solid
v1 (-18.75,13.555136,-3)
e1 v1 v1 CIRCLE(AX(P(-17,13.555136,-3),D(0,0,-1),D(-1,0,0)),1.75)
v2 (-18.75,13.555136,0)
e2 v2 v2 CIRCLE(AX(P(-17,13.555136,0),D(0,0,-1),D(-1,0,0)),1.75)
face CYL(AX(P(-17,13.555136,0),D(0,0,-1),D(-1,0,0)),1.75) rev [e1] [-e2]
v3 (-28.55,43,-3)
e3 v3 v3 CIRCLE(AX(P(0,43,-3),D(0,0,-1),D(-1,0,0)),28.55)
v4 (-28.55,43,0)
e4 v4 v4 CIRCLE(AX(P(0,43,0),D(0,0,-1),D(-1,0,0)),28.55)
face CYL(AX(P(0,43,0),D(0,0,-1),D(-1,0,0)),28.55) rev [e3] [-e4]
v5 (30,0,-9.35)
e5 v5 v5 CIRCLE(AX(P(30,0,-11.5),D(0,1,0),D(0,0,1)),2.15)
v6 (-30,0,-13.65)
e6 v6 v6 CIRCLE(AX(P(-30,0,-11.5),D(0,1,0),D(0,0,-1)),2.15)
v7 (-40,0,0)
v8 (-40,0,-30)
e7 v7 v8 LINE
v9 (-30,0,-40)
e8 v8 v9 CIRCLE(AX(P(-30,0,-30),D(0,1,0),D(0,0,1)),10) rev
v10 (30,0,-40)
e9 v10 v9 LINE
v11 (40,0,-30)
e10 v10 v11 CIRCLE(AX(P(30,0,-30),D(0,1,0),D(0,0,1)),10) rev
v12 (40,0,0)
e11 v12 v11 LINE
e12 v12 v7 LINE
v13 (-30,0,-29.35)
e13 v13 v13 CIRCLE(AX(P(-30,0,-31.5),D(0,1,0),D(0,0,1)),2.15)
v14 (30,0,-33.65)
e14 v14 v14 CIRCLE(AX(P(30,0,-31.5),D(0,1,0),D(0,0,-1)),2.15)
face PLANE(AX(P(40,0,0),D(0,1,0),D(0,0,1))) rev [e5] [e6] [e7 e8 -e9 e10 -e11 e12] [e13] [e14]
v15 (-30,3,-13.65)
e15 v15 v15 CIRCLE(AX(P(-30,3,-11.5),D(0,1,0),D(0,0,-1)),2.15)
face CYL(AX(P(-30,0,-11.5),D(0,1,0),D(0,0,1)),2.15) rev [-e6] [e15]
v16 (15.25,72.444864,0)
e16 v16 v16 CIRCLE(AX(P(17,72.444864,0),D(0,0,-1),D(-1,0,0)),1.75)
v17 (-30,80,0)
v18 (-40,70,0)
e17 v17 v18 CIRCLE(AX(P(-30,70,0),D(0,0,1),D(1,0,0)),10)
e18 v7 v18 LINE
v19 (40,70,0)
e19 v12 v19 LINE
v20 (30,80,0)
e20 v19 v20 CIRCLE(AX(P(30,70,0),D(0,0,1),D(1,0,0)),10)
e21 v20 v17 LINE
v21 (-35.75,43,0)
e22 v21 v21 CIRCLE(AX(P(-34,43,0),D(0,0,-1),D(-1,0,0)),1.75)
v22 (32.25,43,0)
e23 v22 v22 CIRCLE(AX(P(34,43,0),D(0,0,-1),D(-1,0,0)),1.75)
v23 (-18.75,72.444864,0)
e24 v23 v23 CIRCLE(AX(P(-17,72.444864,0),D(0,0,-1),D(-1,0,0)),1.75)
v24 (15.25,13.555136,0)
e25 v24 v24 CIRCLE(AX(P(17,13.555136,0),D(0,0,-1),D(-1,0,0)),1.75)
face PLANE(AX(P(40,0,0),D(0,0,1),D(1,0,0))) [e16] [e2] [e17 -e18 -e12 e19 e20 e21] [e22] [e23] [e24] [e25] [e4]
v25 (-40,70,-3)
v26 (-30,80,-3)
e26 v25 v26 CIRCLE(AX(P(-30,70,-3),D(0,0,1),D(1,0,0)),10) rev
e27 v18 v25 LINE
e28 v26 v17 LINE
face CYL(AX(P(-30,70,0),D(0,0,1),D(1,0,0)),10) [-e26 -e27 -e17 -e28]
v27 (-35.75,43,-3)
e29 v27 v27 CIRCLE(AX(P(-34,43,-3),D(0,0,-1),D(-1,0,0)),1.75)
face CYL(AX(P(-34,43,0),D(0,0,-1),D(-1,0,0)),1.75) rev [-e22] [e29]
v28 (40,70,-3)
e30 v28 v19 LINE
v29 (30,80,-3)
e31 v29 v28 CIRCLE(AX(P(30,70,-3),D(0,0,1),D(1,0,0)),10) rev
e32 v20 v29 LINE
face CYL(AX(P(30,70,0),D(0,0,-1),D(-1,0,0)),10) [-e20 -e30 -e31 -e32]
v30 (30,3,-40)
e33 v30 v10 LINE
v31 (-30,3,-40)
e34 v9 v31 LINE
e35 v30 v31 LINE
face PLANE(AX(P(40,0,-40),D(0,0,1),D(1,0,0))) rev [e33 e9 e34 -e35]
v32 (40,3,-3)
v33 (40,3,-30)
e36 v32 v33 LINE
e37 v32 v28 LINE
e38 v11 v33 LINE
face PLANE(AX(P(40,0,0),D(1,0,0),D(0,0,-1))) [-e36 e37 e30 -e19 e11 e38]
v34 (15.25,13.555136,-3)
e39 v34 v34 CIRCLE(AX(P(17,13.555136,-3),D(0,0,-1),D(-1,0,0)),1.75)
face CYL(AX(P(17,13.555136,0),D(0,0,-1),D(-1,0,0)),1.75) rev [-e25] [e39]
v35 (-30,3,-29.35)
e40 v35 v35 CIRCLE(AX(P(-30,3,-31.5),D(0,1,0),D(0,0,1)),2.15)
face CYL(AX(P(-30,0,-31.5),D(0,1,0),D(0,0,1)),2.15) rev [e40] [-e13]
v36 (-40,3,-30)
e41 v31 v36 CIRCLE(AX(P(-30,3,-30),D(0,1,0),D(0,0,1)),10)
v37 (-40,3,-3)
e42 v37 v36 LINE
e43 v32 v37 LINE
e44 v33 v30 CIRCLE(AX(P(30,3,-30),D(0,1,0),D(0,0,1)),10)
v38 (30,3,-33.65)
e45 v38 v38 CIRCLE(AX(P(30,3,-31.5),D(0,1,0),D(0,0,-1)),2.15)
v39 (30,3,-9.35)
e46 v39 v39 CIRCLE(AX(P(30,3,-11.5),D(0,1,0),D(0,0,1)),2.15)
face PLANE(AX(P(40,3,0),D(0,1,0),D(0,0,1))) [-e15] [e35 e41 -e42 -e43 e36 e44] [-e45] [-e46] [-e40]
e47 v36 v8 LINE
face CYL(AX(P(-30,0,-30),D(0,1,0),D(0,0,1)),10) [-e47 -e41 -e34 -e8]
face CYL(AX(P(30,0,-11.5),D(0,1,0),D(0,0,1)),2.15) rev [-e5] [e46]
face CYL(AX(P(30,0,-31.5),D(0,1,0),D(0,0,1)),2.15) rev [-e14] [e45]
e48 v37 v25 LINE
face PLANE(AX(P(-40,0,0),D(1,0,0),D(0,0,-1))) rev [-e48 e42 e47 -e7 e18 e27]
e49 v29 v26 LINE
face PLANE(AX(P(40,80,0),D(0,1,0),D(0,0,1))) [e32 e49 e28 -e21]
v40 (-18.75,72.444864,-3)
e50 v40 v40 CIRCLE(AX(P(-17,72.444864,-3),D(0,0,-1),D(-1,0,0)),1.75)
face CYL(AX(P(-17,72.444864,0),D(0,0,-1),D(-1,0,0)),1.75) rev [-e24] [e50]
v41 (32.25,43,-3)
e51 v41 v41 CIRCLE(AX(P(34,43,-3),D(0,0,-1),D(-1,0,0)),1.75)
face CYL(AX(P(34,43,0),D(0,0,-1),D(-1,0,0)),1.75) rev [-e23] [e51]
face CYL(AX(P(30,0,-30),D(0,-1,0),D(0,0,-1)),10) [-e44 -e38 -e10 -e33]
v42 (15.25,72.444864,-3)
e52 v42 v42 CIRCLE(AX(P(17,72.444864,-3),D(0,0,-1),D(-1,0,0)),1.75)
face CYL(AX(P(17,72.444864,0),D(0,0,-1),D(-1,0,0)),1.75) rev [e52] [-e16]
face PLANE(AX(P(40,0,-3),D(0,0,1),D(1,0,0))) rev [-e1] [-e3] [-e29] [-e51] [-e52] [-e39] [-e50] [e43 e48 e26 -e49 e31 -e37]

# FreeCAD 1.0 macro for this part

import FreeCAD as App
import Part
import Sketcher

V = App.Vector
Q = App.Units.Quantity


def edges_at(feature, points):
    """Names of the edges that pass closest to the given points."""
    edges = feature.Shape.Edges
    near = lambda p: min(range(len(edges)), key=lambda i: edges[i].distToShape(Part.Vertex(*p))[0])
    return sorted({f"Edge{near(p) + 1}" for p in points})

doc = App.newDocument("Part")
body = doc.addObject("PartDesign::Body", "Body")

# Sketch on YZ plane
sketch1 = body.newObject("Sketcher::SketchObject", "Sketch")
sketch1.AttachmentSupport = (doc.getObject("YZ_Plane"), [""])
sketch1.MapMode = "FlatFace"
sketch1.addGeometry(Part.LineSegment(V(80, 0, 0), V(0, 0, 0)), False)
sketch1.addGeometry(Part.LineSegment(V(0, 0, 0), V(0, -40, 0)), False)
sketch1.addGeometry(Part.LineSegment(V(0, -40, 0), V(3, -40, 0)), False)
sketch1.addGeometry(Part.LineSegment(V(3, -40, 0), V(3, -3, 0)), False)
sketch1.addGeometry(Part.LineSegment(V(3, -3, 0), V(80, -3, 0)), False)
sketch1.addGeometry(Part.LineSegment(V(80, -3, 0), V(80, 0, 0)), False)
sketch1.addConstraint(Sketcher.Constraint("Coincident", 0, 2, 1, 1))
sketch1.addConstraint(Sketcher.Constraint("Coincident", 1, 2, 2, 1))
sketch1.addConstraint(Sketcher.Constraint("Coincident", 2, 2, 3, 1))
sketch1.addConstraint(Sketcher.Constraint("Coincident", 3, 2, 4, 1))
sketch1.addConstraint(Sketcher.Constraint("Coincident", 4, 2, 5, 1))
sketch1.addConstraint(Sketcher.Constraint("Coincident", 5, 2, 0, 1))
sketch1.addConstraint(Sketcher.Constraint("Horizontal", 0))
sketch1.addConstraint(Sketcher.Constraint("Vertical", 1))
sketch1.addConstraint(Sketcher.Constraint("Horizontal", 2))
sketch1.addConstraint(Sketcher.Constraint("Vertical", 3))
sketch1.addConstraint(Sketcher.Constraint("Horizontal", 4))
sketch1.addConstraint(Sketcher.Constraint("Vertical", 5))
sketch1.addConstraint(Sketcher.Constraint("Coincident", 0, 2, -1, 1))
sketch1.addConstraint(Sketcher.Constraint("Equal", 2, 5))
sketch1.addConstraint(Sketcher.Constraint("DistanceX", 0, 2, 0, 1, Q("80 mm")))
sketch1.addConstraint(Sketcher.Constraint("DistanceX", 2, 1, 2, 2, Q("3 mm")))
sketch1.addConstraint(Sketcher.Constraint("DistanceY", 1, 2, 1, 1, Q("40 mm")))
pad1 = body.newObject("PartDesign::Pad", "Pad")
pad1.Profile = sketch1
pad1.Length = 80
pad1.Midplane = True

# Sketch on XY plane
sketch2 = body.newObject("Sketcher::SketchObject", "Sketch001")
sketch2.AttachmentSupport = (doc.getObject("XY_Plane"), [""])
sketch2.MapMode = "FlatFace"
sketch2.AttachmentOffset = App.Placement(V(0, 0, -3), App.Rotation())
sketch2.addGeometry(Part.Circle(V(-17, 72.4, 0), V(0, 0, 1), 1.8), False)
sketch2.addGeometry(Part.Circle(V(-34, 43, 0), V(0, 0, 1), 1.8), False)
sketch2.addGeometry(Part.Circle(V(-17, 13.6, 0), V(0, 0, 1), 1.8), False)
sketch2.addGeometry(Part.Circle(V(17, 13.6, 0), V(0, 0, 1), 1.8), False)
sketch2.addGeometry(Part.Circle(V(34, 43, 0), V(0, 0, 1), 1.8), False)
sketch2.addGeometry(Part.Circle(V(17, 72.4, 0), V(0, 0, 1), 1.8), False)
sketch2.addGeometry(Part.Circle(V(0, 43, 0), V(0, 0, 1), 28.6), False)
sketch2.addConstraint(Sketcher.Constraint("Equal", 0, 1))
sketch2.addConstraint(Sketcher.Constraint("Equal", 1, 2))
sketch2.addConstraint(Sketcher.Constraint("Equal", 2, 3))
sketch2.addConstraint(Sketcher.Constraint("Equal", 3, 4))
sketch2.addConstraint(Sketcher.Constraint("Equal", 4, 5))
sketch2.addConstraint(Sketcher.Constraint("Symmetric", 2, 3, 3, 3, -2))
sketch2.addConstraint(Sketcher.Constraint("Symmetric", 1, 3, 4, 3, -2))
sketch2.addConstraint(Sketcher.Constraint("Symmetric", 0, 3, 5, 3, -2))
sketch2.addConstraint(Sketcher.Constraint("PointOnObject", 6, 3, -2))
sketch2.addConstraint(Sketcher.Constraint("Horizontal", 4, 3, 6, 3))
sketch2.addConstraint(Sketcher.Constraint("Vertical", 0, 3, 2, 3))
sketch2.addConstraint(Sketcher.Constraint("Diameter", 0, Q("3.5 mm")))
sketch2.addConstraint(Sketcher.Constraint("Diameter", 6, Q("57.1 mm")))
sketch2.addConstraint(Sketcher.Constraint("DistanceX", 0, 3, -1, 1, Q("17 mm")))
sketch2.addConstraint(Sketcher.Constraint("DistanceX", 1, 3, -1, 1, Q("34 mm")))
sketch2.addConstraint(Sketcher.Constraint("DistanceY", -1, 1, 1, 3, Q("43 mm")))
sketch2.addConstraint(Sketcher.Constraint("DistanceY", -1, 1, 0, 3, Q("72.444864 mm")))
sketch2.addConstraint(Sketcher.Constraint("DistanceY", -1, 1, 2, 3, Q("13.555136 mm")))
pocket1 = body.newObject("PartDesign::Pocket", "Pocket")
pocket1.Profile = sketch2
pocket1.Type = "ThroughAll"
pocket1.Reversed = True

# Sketch on XZ plane
sketch3 = body.newObject("Sketcher::SketchObject", "Sketch002")
sketch3.AttachmentSupport = (doc.getObject("XZ_Plane"), [""])
sketch3.MapMode = "FlatFace"
sketch3.AttachmentOffset = App.Placement(V(0, 0, -3), App.Rotation())
sketch3.addGeometry(Part.Circle(V(-30, -31.5, 0), V(0, 0, 1), 2.1), False)
sketch3.addGeometry(Part.Circle(V(-30, -11.5, 0), V(0, 0, 1), 2.1), False)
sketch3.addGeometry(Part.Circle(V(30, -11.5, 0), V(0, 0, 1), 2.1), False)
sketch3.addGeometry(Part.Circle(V(30, -31.5, 0), V(0, 0, 1), 2.1), False)
sketch3.addConstraint(Sketcher.Constraint("Equal", 0, 1))
sketch3.addConstraint(Sketcher.Constraint("Equal", 1, 2))
sketch3.addConstraint(Sketcher.Constraint("Equal", 2, 3))
sketch3.addConstraint(Sketcher.Constraint("Symmetric", 1, 3, 2, 3, -2))
sketch3.addConstraint(Sketcher.Constraint("Symmetric", 0, 3, 3, 3, -2))
sketch3.addConstraint(Sketcher.Constraint("Vertical", 0, 3, 1, 3))
sketch3.addConstraint(Sketcher.Constraint("Diameter", 0, Q("4.3 mm")))
sketch3.addConstraint(Sketcher.Constraint("DistanceX", 0, 3, -1, 1, Q("30 mm")))
sketch3.addConstraint(Sketcher.Constraint("DistanceY", 0, 3, 1, 3, Q("20 mm")))
sketch3.addConstraint(Sketcher.Constraint("DistanceY", 0, 3, -1, 1, Q("31.5 mm")))
pocket2 = body.newObject("PartDesign::Pocket", "Pocket001")
pocket2.Profile = sketch3
pocket2.Type = "ThroughAll"
pocket2.Reversed = True
doc.recompute()

fillet = body.newObject("PartDesign::Fillet", "Fillet")
fillet.Base = (pocket2, edges_at(pocket2, [
    (40, 1.5, -40),
    (40, 80, -1.5),
    (-40, 80, -1.5),
    (-40, 1.5, -40),
]))
fillet.Radius = 10

doc.recompute()
